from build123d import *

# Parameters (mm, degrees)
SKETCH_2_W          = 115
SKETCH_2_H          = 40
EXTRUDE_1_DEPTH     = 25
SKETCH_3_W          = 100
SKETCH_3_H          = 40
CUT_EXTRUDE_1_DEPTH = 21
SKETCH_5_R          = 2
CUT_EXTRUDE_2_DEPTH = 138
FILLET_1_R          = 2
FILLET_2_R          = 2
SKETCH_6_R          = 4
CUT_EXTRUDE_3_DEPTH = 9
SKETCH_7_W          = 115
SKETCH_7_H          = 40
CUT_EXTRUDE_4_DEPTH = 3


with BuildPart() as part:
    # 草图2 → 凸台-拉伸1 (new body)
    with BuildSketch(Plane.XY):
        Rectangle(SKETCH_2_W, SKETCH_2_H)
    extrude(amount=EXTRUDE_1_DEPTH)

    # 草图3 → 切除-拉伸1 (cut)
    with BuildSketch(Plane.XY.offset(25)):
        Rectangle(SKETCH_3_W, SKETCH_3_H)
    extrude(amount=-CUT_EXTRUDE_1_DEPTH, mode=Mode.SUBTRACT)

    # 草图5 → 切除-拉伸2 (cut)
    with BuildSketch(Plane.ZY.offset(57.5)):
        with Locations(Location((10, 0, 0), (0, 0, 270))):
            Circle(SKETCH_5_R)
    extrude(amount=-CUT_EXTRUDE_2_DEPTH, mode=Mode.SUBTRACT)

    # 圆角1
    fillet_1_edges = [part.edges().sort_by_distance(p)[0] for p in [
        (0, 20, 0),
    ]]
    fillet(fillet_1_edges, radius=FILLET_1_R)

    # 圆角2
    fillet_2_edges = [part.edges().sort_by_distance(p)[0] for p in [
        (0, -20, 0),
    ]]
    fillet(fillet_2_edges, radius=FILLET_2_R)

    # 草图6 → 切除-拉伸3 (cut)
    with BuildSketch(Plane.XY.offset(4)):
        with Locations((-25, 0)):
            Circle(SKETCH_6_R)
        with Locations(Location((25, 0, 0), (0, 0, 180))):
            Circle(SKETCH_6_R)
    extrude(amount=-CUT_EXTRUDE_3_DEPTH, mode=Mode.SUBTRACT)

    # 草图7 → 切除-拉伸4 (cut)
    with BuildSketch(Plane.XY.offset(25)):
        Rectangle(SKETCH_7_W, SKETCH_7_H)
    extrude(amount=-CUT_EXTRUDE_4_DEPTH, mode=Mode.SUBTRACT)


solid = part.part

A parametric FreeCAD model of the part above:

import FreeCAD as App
import Part
import Sketcher


def edges_at(feature, points):
    """Names of the edges that pass closest to the given points."""
    edges = feature.Shape.Edges
    near = lambda p: min(range(len(edges)), key=lambda i: edges[i].distToShape(Part.Vertex(*p))[0])
    return sorted({f"Edge{near(p) + 1}" for p in points})


def add_polygon(sketch, points):
    """Adds a closed chain of lines whose ends are joined by coincident constraints."""
    first, n = sketch.GeometryCount, len(points)
    for a, b in zip(points, points[1:] + points[:1]):
        sketch.addGeometry(Part.LineSegment(App.Vector(*a, 0), App.Vector(*b, 0)), False)
    for i in range(n):
        sketch.addConstraint(Sketcher.Constraint("Coincident", first + i, 2, first + (i + 1) % n, 1))

doc = App.newDocument("Part")
body = doc.addObject("PartDesign::Body", "Body")

# Sketch on XY plane
sketch1 = body.newObject("Sketcher::SketchObject", "Sketch")
sketch1.AttachmentSupport = (doc.getObject("XY_Plane"), [""])
sketch1.MapMode = "FlatFace"
add_polygon(sketch1, [(-58, 20), (-58, -20), (58, -20), (58, 20)])  # lines 0-3
sketch1.addConstraint(Sketcher.Constraint("Vertical", 0))
sketch1.addConstraint(Sketcher.Constraint("Horizontal", 1))
sketch1.addConstraint(Sketcher.Constraint("Vertical", 2))
sketch1.addConstraint(Sketcher.Constraint("Horizontal", 3))
sketch1.addConstraint(Sketcher.Constraint("Symmetric", 0, 2, 2, 2, -1, 1))
sketch1.addConstraint(Sketcher.Constraint("DistanceX", 1, 1, 1, 2, 115.0))
sketch1.addConstraint(Sketcher.Constraint("DistanceY", 0, 2, 0, 1, 40.0))
pad1 = body.newObject("PartDesign::Pad", "Pad")
pad1.Profile = sketch1
pad1.Length = 25

# Sketch on XY plane
sketch2 = body.newObject("Sketcher::SketchObject", "Sketch001")
sketch2.AttachmentSupport = (doc.getObject("XY_Plane"), [""])
sketch2.MapMode = "FlatFace"
sketch2.AttachmentOffset = App.Placement(App.Vector(0, 0, 25), App.Rotation())
add_polygon(sketch2, [(-50, 20), (-50, -20), (50, -20), (50, 20)])  # lines 0-3
sketch2.addConstraint(Sketcher.Constraint("Vertical", 0))
sketch2.addConstraint(Sketcher.Constraint("Horizontal", 1))
sketch2.addConstraint(Sketcher.Constraint("Vertical", 2))
sketch2.addConstraint(Sketcher.Constraint("Horizontal", 3))
sketch2.addConstraint(Sketcher.Constraint("Symmetric", 0, 2, 2, 2, -1, 1))
sketch2.addConstraint(Sketcher.Constraint("DistanceX", 1, 1, 1, 2, 100.0))
sketch2.addConstraint(Sketcher.Constraint("DistanceY", 0, 2, 0, 1, 40.0))
pocket1 = body.newObject("PartDesign::Pocket", "Pocket")
pocket1.Profile = sketch2
pocket1.Length = 21

# Sketch on YZ plane
sketch3 = body.newObject("Sketcher::SketchObject", "Sketch002")
sketch3.AttachmentSupport = (doc.getObject("YZ_Plane"), [""])
sketch3.MapMode = "FlatFace"
sketch3.AttachmentOffset = App.Placement(App.Vector(0, 0, -57.5), App.Rotation())
sketch3.addGeometry(Part.Circle(App.Vector(0, 10, 0), App.Vector(0, 0, 1), 2), False)
sketch3.addConstraint(Sketcher.Constraint("PointOnObject", 0, 3, -2))
sketch3.addConstraint(Sketcher.Constraint("Diameter", 0, 4.0))
sketch3.addConstraint(Sketcher.Constraint("DistanceY", -1, 1, 0, 3, 10.0))
pocket2 = body.newObject("PartDesign::Pocket", "Pocket001")
pocket2.Profile = sketch3
pocket2.Length = 138
pocket2.Reversed = True
doc.recompute()

fillet = body.newObject("PartDesign::Fillet", "Fillet")
fillet.Base = (pocket2, edges_at(pocket2, [(0, 20, 0)]))
fillet.Radius = 2
doc.recompute()

fillet2 = body.newObject("PartDesign::Fillet", "Fillet001")
fillet2.Base = (fillet, edges_at(fillet, [(0, -20, 0)]))
fillet2.Radius = 2

# Sketch on XY plane
sketch4 = body.newObject("Sketcher::SketchObject", "Sketch003")
sketch4.AttachmentSupport = (doc.getObject("XY_Plane"), [""])
sketch4.MapMode = "FlatFace"
sketch4.AttachmentOffset = App.Placement(App.Vector(0, 0, 4), App.Rotation())
sketch4.addGeometry(Part.Circle(App.Vector(-25, 0, 0), App.Vector(0, 0, 1), 4), False)
sketch4.addGeometry(Part.Circle(App.Vector(25, 0, 0), App.Vector(0, 0, 1), 4), False)
sketch4.addConstraint(Sketcher.Constraint("Equal", 0, 1))
sketch4.addConstraint(Sketcher.Constraint("Symmetric", 0, 3, 1, 3, -1, 1))
sketch4.addConstraint(Sketcher.Constraint("PointOnObject", 0, 3, -1))
sketch4.addConstraint(Sketcher.Constraint("Diameter", 0, 8.0))
sketch4.addConstraint(Sketcher.Constraint("DistanceX", 0, 3, -1, 1, 25.0))
pocket3 = body.newObject("PartDesign::Pocket", "Pocket002")
pocket3.Profile = sketch4
pocket3.Length = 9

# Sketch on XY plane
sketch5 = body.newObject("Sketcher::SketchObject", "Sketch004")
sketch5.AttachmentSupport = (doc.getObject("XY_Plane"), [""])
sketch5.MapMode = "FlatFace"
sketch5.AttachmentOffset = App.Placement(App.Vector(0, 0, 25), App.Rotation())
add_polygon(sketch5, [(-58, 20), (-58, -20), (58, -20), (58, 20)])  # lines 0-3
sketch5.addConstraint(Sketcher.Constraint("Vertical", 0))
sketch5.addConstraint(Sketcher.Constraint("Horizontal", 1))
sketch5.addConstraint(Sketcher.Constraint("Vertical", 2))
sketch5.addConstraint(Sketcher.Constraint("Horizontal", 3))
sketch5.addConstraint(Sketcher.Constraint("Symmetric", 0, 2, 2, 2, -1, 1))
sketch5.addConstraint(Sketcher.Constraint("DistanceX", 1, 1, 1, 2, 115.0))
sketch5.addConstraint(Sketcher.Constraint("DistanceY", 0, 2, 0, 1, 40.0))
pocket4 = body.newObject("PartDesign::Pocket", "Pocket003")
pocket4.Profile = sketch5
pocket4.Length = 3

doc.recompute()
